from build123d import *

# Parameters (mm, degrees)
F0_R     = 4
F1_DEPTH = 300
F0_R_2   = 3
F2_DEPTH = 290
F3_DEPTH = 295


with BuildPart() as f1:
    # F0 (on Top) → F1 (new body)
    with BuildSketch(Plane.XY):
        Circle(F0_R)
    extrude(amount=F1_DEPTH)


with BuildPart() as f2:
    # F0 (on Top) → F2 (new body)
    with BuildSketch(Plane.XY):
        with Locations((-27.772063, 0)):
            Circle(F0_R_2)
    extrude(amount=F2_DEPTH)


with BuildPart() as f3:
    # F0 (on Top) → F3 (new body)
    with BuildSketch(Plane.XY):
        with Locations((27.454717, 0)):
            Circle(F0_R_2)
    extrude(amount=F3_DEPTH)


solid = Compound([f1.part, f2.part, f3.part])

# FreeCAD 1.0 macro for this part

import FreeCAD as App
import Part
import Sketcher
from FreeCAD import Vector

doc = App.newDocument("Part")
params = doc.addObject("Spreadsheet::Sheet", "Params")
for row, (alias, value) in enumerate([
    ("sketch1_diameter", "8 mm"),
    ("pad1_length", "300 mm"),
    ("sketch2_diameter", "6 mm"),
    ("pad2_length", "290 mm"),
    ("sketch3_diameter", "6 mm"),
    ("pad3_length", "295 mm"),
], start=1):
    params.set(f"A{row}", alias)
    params.set(f"B{row}", "=" + value)
    params.setAlias(f"B{row}", alias)

body = doc.addObject("PartDesign::Body", "Body")

sketch1 = body.newObject("Sketcher::SketchObject", "Sketch")
sketch1.AttachmentSupport = (doc.getObject("XY_Plane"), [""])
sketch1.MapMode = "FlatFace"
sketch1.addGeometry(Part.Circle(Vector(0, 0, 0), Vector(0, 0, 1), 4), False)
sketch1.addConstraint(Sketcher.Constraint("Coincident", 0, 3, -1, 1))
sketch1.addConstraint(Sketcher.Constraint("Diameter", 0, 8.0))
sketch1.setExpression("Constraints[1]", "Params.sketch1_diameter")
pad1 = body.newObject("PartDesign::Pad", "Pad")
pad1.Profile = sketch1
pad1.setExpression("Length", "Params.pad1_length")
body2 = doc.addObject("PartDesign::Body", "Body001")

sketch2 = body2.newObject("Sketcher::SketchObject", "Sketch001")
sketch2.AttachmentSupport = (doc.getObject("XY_Plane001"), [""])
sketch2.MapMode = "FlatFace"
sketch2.addGeometry(Part.Circle(Vector(-27.8, 0, 0), Vector(0, 0, 1), 3), False)
sketch2.addConstraint(Sketcher.Constraint("PointOnObject", 0, 3, -1))
sketch2.addConstraint(Sketcher.Constraint("Diameter", 0, 6.0))
sketch2.addConstraint(Sketcher.Constraint("DistanceX", 0, 3, -1, 1, 27.772063))
sketch2.setExpression("Constraints[1]", "Params.sketch2_diameter")
pad2 = body2.newObject("PartDesign::Pad", "Pad001")
pad2.Profile = sketch2
pad2.setExpression("Length", "Params.pad2_length")
body3 = doc.addObject("PartDesign::Body", "Body002")

sketch3 = body3.newObject("Sketcher::SketchObject", "Sketch002")
sketch3.AttachmentSupport = (doc.getObject("XY_Plane002"), [""])
sketch3.MapMode = "FlatFace"
sketch3.addGeometry(Part.Circle(Vector(27.5, 0, 0), Vector(0, 0, 1), 3), False)
sketch3.addConstraint(Sketcher.Constraint("PointOnObject", 0, 3, -1))
sketch3.addConstraint(Sketcher.Constraint("Diameter", 0, 6.0))
sketch3.addConstraint(Sketcher.Constraint("DistanceX", -1, 1, 0, 3, 27.454717))
sketch3.setExpression("Constraints[1]", "Params.sketch3_diameter")
pad3 = body3.newObject("PartDesign::Pad", "Pad002")
pad3.Profile = sketch3
pad3.setExpression("Length", "Params.pad3_length")

doc.recompute()
